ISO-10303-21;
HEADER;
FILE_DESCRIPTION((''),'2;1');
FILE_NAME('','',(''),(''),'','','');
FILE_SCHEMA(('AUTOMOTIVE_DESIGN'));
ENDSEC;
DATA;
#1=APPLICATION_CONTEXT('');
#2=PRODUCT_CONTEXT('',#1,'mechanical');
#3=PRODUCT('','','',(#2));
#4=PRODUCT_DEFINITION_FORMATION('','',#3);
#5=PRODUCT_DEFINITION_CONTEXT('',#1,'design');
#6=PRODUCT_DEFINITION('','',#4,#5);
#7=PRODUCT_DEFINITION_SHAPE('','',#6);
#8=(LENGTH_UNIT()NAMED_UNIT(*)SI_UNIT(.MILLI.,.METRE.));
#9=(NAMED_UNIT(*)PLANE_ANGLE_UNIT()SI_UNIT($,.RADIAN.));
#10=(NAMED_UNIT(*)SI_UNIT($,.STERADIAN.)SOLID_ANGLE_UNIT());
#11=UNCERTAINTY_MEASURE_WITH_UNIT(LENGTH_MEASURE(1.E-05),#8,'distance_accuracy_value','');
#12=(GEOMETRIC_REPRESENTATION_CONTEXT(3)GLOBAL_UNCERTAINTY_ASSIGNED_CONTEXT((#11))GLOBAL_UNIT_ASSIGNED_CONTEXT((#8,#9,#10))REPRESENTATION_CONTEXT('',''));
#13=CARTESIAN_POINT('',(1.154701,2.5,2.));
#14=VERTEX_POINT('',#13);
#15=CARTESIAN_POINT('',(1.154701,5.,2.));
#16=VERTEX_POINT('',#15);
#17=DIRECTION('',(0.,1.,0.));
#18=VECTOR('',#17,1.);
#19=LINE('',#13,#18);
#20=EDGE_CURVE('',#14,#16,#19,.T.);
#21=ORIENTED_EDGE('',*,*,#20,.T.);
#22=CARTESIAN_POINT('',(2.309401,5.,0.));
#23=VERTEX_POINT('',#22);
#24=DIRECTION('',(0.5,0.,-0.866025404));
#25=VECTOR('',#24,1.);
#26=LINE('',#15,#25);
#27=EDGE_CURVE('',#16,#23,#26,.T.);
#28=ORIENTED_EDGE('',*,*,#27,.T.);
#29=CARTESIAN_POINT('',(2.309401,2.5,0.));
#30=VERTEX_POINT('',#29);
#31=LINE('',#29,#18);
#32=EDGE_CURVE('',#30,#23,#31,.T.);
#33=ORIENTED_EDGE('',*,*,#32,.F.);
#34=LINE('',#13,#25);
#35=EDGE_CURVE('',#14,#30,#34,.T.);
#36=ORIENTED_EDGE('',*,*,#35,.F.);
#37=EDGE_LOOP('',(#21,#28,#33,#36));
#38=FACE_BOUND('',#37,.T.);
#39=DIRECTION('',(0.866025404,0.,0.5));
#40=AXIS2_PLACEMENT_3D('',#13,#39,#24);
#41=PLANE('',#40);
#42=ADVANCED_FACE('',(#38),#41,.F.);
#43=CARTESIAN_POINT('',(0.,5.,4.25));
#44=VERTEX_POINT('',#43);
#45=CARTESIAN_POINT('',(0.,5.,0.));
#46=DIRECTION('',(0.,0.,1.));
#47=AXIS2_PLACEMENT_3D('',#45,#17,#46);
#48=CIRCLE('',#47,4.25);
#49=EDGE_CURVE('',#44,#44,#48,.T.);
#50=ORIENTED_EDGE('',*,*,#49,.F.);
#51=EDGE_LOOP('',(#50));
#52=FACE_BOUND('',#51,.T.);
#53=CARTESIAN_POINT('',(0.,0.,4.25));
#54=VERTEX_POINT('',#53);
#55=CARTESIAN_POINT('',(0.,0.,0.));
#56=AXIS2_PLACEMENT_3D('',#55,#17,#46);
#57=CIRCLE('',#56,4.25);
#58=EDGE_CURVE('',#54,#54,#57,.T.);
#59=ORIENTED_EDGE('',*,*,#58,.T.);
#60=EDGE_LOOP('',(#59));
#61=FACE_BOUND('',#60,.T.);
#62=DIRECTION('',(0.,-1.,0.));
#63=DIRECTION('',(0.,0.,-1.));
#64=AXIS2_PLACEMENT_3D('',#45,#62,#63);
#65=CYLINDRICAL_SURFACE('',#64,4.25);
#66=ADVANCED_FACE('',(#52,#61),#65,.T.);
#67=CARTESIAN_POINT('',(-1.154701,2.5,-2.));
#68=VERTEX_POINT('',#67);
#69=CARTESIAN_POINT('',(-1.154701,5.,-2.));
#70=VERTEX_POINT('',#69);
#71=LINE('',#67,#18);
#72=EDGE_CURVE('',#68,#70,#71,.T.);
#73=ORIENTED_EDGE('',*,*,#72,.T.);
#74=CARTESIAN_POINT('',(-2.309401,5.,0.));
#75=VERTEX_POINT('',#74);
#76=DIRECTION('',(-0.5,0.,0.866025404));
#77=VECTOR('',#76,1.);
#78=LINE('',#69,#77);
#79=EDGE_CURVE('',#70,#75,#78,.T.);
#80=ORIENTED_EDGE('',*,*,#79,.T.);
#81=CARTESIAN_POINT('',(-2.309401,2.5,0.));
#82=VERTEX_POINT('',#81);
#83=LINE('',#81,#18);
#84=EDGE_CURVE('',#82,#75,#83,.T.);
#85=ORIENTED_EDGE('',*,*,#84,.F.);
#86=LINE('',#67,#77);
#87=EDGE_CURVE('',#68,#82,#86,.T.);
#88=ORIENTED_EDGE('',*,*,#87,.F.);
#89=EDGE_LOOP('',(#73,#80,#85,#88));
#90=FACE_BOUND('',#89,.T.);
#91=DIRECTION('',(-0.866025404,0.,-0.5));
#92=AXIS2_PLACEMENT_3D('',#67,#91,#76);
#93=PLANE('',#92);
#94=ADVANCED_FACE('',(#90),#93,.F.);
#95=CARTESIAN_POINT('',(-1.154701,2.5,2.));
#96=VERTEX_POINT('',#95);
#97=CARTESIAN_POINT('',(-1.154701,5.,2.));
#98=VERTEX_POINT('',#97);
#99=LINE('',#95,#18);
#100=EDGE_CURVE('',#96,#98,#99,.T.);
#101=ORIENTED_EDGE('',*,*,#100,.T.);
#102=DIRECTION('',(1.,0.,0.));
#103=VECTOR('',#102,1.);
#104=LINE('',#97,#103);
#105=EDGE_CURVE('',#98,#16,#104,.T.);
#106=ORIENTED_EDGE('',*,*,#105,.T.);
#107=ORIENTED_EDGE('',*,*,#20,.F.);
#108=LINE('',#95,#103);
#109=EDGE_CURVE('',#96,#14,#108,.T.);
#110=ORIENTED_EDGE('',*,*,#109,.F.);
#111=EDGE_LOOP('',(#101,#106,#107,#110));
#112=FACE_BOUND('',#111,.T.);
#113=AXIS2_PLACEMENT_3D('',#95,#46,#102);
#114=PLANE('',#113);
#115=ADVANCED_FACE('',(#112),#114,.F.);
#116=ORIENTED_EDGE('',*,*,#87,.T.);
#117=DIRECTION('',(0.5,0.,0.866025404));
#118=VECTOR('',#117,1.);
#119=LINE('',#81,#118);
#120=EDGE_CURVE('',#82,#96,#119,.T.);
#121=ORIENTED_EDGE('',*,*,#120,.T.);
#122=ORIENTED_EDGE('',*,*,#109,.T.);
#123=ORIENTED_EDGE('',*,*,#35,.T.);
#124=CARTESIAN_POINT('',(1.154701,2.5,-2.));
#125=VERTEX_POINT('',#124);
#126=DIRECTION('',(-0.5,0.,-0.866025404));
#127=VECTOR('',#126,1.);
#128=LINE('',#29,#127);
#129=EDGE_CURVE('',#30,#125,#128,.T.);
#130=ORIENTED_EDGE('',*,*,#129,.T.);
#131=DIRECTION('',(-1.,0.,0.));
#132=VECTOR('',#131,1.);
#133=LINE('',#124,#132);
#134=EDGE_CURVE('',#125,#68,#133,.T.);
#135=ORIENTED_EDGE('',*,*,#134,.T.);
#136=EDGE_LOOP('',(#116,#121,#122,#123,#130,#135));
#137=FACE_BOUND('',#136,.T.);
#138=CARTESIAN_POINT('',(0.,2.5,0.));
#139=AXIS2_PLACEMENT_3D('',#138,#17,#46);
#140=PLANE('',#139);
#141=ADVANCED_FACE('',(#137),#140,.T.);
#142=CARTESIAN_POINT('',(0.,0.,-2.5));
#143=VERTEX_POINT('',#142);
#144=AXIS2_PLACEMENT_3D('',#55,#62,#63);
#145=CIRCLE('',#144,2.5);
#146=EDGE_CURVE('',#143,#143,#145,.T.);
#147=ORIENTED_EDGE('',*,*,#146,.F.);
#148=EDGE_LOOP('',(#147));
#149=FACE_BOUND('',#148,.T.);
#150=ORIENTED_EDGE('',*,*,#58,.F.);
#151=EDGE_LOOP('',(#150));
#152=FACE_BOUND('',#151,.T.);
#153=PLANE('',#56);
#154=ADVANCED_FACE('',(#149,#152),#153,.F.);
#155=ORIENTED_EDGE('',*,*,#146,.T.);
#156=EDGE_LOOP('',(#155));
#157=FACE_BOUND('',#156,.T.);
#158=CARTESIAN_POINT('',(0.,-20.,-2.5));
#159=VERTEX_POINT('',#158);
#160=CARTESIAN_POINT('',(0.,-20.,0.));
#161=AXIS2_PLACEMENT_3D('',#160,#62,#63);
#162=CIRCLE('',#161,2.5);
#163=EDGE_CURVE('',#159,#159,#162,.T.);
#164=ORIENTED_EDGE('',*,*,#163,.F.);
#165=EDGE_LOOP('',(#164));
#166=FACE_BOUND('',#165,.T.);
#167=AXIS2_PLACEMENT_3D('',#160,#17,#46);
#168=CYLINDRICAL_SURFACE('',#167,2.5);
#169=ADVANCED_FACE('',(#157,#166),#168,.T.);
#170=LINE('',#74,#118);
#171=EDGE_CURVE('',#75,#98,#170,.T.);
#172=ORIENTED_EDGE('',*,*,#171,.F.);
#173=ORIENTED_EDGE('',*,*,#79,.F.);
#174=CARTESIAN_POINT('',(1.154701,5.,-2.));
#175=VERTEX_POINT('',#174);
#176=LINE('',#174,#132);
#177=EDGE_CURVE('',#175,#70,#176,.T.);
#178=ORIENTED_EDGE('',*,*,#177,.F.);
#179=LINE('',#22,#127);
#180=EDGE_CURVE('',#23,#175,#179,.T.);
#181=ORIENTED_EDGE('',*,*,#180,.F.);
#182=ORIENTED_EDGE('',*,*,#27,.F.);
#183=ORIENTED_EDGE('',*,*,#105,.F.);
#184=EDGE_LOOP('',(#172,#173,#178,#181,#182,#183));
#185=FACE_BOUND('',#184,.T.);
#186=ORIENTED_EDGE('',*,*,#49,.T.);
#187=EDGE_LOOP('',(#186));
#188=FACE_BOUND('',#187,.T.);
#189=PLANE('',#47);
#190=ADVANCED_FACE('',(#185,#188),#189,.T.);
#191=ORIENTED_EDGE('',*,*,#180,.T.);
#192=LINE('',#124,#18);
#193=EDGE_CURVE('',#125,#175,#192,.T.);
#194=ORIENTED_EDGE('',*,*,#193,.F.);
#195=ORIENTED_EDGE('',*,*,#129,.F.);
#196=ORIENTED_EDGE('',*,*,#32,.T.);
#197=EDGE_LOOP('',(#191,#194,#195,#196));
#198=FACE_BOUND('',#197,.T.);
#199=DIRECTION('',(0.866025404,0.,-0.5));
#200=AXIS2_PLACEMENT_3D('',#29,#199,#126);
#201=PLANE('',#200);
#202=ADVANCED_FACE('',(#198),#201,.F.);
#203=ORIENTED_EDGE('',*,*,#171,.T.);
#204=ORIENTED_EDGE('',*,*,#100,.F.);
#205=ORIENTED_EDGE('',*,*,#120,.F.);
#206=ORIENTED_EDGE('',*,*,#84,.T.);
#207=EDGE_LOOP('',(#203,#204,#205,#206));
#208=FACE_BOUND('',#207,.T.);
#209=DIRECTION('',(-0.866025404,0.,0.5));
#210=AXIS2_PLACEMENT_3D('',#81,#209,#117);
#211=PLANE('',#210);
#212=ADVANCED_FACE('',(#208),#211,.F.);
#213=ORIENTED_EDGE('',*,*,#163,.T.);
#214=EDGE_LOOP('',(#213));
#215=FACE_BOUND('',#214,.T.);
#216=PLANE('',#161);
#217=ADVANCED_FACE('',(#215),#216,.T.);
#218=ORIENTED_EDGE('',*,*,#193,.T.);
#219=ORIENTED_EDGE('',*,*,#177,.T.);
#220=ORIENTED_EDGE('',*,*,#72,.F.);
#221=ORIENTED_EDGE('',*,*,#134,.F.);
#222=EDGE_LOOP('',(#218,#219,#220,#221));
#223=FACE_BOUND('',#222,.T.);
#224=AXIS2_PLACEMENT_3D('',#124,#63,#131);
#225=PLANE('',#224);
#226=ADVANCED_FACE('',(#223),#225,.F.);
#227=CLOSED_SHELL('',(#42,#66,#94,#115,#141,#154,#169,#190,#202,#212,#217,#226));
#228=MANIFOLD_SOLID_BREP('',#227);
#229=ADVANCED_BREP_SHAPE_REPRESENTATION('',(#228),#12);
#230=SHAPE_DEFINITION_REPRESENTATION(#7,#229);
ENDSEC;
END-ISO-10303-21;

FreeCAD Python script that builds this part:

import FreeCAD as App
import Part
import Sketcher
from FreeCAD import Vector
Q = App.Units.Quantity


def add_polygon(sketch, points):
    """Adds a closed chain of lines whose ends are joined by coincident constraints."""
    first, n = sketch.GeometryCount, len(points)
    for a, b in zip(points, points[1:] + points[:1]):
        sketch.addGeometry(Part.LineSegment(App.Vector(*a, 0), App.Vector(*b, 0)), False)
    for i in range(n):
        sketch.addConstraint(Sketcher.Constraint("Coincident", first + i, 2, first + (i + 1) % n, 1))

doc = App.newDocument("Part")
body = doc.addObject("PartDesign::Body", "Body")

sketch1 = doc.addObject("Sketcher::SketchObject", "Sketch")
body.addObject(sketch1)
sketch1.AttachmentSupport = (doc.XZ_Plane, [""])
sketch1.MapMode = "FlatFace"
sketch1.addGeometry(Part.Circle(Vector(0, 0, 0), Vector(0, 0, 1), 4.25), False)
sketch1.addConstraint([
    Sketcher.Constraint("Coincident", 0, 3, -1, 1),
    Sketcher.Constraint("Diameter", 0, Q("8.5 mm")),
])
pad1 = doc.addObject("PartDesign::Pad", "Pad")
body.addObject(pad1)
pad1.Profile = sketch1
pad1.Length = 5
pad1.Reversed = True

sketch2 = doc.addObject("Sketcher::SketchObject", "Sketch001")
body.addObject(sketch2)
sketch2.AttachmentSupport = (doc.XZ_Plane, [""])
sketch2.MapMode = "FlatFace"
sketch2.AttachmentOffset = App.Placement(Vector(0, 0, -5), App.Rotation())
add_polygon(sketch2, [(2.309401, 0), (1.154701, -2), (-1.154701, -2), (-2.309401, 0), (-1.154701, 2), (1.154701, 2)])
sketch2.addConstraint([
    Sketcher.Constraint("Horizontal", 1),
    Sketcher.Constraint("Horizontal", 4),
    Sketcher.Constraint("Symmetric", 0, 2, 3, 2, -1, 1),
    Sketcher.Constraint("Symmetric", 2, 2, 5, 2, -1, 1),
    Sketcher.Constraint("PointOnObject", 2, 2, -1),
    Sketcher.Constraint("Parallel", 2, 5),
    Sketcher.Constraint("Vertical", 1, 2, 3, 2),
    Sketcher.Constraint("Angle", 0, Q("-120 deg")),
    Sketcher.Constraint("DistanceY", 0, 2, -1, 1, Q("2 mm")),
    Sketcher.Constraint("DistanceX", 1, 2, 1, 1, Q("2.309401 mm")),
])
pocket1 = doc.addObject("PartDesign::Pocket", "Pocket")
body.addObject(pocket1)
pocket1.Profile = sketch2
pocket1.Length = 2.5
pocket1.Reversed = True

sketch3 = doc.addObject("Sketcher::SketchObject", "Sketch002")
body.addObject(sketch3)
sketch3.AttachmentSupport = (doc.XZ_Plane, [""])
sketch3.MapMode = "FlatFace"
sketch3.addGeometry(Part.Circle(Vector(0, 0, 0), Vector(0, 0, 1), 2.5), False)
sketch3.addConstraint([
    Sketcher.Constraint("Coincident", 0, 3, -1, 1),
    Sketcher.Constraint("Diameter", 0, Q("5 mm")),
])
pad2 = doc.addObject("PartDesign::Pad", "Pad001")
body.addObject(pad2)
pad2.Profile = sketch3
pad2.Length = 20

doc.recompute()
